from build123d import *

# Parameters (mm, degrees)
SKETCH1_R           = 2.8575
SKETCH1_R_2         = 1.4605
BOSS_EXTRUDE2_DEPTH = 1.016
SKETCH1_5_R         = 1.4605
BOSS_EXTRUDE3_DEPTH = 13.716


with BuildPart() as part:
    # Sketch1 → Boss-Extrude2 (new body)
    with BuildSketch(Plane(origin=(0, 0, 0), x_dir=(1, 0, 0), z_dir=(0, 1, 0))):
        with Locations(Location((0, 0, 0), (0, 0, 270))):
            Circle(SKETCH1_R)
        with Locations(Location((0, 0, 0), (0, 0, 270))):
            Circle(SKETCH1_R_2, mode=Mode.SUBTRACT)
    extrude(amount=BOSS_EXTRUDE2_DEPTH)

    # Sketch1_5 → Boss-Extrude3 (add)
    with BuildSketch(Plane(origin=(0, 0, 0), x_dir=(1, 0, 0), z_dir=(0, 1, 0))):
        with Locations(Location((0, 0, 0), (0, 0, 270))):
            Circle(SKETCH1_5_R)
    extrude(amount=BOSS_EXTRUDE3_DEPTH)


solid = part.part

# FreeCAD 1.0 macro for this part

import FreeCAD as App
import Part
import Sketcher
Q = App.Units.Quantity

doc = App.newDocument("Part")
body = doc.addObject("PartDesign::Body", "Body")

# Sketch on XZ plane
sketch1 = body.newObject("Sketcher::SketchObject", "Sketch")
sketch1.AttachmentSupport = (doc.getObject("XZ_Plane"), [""])
sketch1.MapMode = "FlatFace"
sketch1.addGeometry(Part.Circle(App.Vector(0, 0, 0), App.Vector(0, 0, 1), 2.9), False)
sketch1.addGeometry(Part.Circle(App.Vector(0, 0, 0), App.Vector(0, 0, 1), 1.5), False)
sketch1.addConstraint(Sketcher.Constraint("Coincident", 0, 3, -1, 1))
sketch1.addConstraint(Sketcher.Constraint("Coincident", 1, 3, -1, 1))
sketch1.addConstraint(Sketcher.Constraint("Diameter", 0, Q("0.225 in")))
sketch1.addConstraint(Sketcher.Constraint("Diameter", 1, Q("0.115 in")))
pad1 = body.newObject("PartDesign::Pad", "Pad")
pad1.Profile = sketch1
pad1.Length = Q("0.04 in")
pad1.Reversed = True

# Sketch on XZ plane
sketch2 = body.newObject("Sketcher::SketchObject", "Sketch001")
sketch2.AttachmentSupport = (doc.getObject("XZ_Plane"), [""])
sketch2.MapMode = "FlatFace"
sketch2.addGeometry(Part.Circle(App.Vector(0, 0, 0), App.Vector(0, 0, 1), 1.5), False)
sketch2.addConstraint(Sketcher.Constraint("Coincident", 0, 3, -1, 1))
sketch2.addConstraint(Sketcher.Constraint("Diameter", 0, Q("0.115 in")))
pad2 = body.newObject("PartDesign::Pad", "Pad001")
pad2.Profile = sketch2
pad2.Length = Q("0.54 in")
pad2.Reversed = True

doc.recompute()
